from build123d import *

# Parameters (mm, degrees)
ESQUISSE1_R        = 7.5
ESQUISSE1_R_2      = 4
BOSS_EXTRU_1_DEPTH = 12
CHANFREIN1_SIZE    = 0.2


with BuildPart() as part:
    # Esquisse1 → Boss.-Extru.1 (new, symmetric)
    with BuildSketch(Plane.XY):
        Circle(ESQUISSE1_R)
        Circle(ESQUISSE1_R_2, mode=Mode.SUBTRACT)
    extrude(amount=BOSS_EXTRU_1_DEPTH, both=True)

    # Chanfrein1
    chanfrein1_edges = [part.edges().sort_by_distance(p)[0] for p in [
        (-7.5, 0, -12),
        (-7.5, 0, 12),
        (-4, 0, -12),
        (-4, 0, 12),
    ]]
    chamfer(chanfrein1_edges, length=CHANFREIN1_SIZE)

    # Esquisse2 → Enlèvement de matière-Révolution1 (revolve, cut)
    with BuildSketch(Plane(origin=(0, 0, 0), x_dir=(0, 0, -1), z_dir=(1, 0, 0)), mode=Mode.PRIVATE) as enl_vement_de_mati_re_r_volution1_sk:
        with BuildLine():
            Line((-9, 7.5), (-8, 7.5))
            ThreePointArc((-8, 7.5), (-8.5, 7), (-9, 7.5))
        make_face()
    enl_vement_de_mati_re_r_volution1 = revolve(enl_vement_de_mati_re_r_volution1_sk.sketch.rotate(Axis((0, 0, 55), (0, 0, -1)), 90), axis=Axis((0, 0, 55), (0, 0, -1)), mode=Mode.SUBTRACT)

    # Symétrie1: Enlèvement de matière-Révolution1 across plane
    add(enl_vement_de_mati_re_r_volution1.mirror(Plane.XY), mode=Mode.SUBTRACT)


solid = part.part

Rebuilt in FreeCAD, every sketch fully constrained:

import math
import FreeCAD as App
import Part
import Sketcher
from FreeCAD import Vector


def edges_at(feature, points):
    """Names of the edges that pass closest to the given points."""
    edges = feature.Shape.Edges
    near = lambda p: min(range(len(edges)), key=lambda i: edges[i].distToShape(Part.Vertex(*p))[0])
    return sorted({f"Edge{near(p) + 1}" for p in points})

doc = App.newDocument("Part")
body = doc.addObject("PartDesign::Body", "Body")

# Sketch on XY plane
sketch1 = body.newObject("Sketcher::SketchObject", "Sketch")
sketch1.AttachmentSupport = (doc.getObject("XY_Plane"), [""])
sketch1.MapMode = "FlatFace"
sketch1.addGeometry(Part.Circle(Vector(0, 0, 0), Vector(0, 0, 1), 7.5), False)
sketch1.addGeometry(Part.Circle(Vector(0, 0, 0), Vector(0, 0, 1), 4), False)
sketch1.addConstraint(Sketcher.Constraint("Coincident", 0, 3, -1, 1))
sketch1.addConstraint(Sketcher.Constraint("Coincident", 1, 3, -1, 1))
sketch1.addConstraint(Sketcher.Constraint("Diameter", 0, 15.0))
sketch1.addConstraint(Sketcher.Constraint("Diameter", 1, 8.0))
pad1 = body.newObject("PartDesign::Pad", "Pad")
pad1.Profile = sketch1
pad1.Length = 24
pad1.Midplane = True
doc.recompute()

chamfer = body.newObject("PartDesign::Chamfer", "Chamfer")
chamfer.Base = (pad1, edges_at(pad1, [
    (-7.5, 0, -12),
    (-7.5, 0, 12),
    (-4, 0, -12),
    (-4, 0, 12),
]))
chamfer.Size = 0.2

# Sketch on YZ plane
sketch2 = body.newObject("Sketcher::SketchObject", "Sketch001")
sketch2.AttachmentSupport = (doc.getObject("YZ_Plane"), [""])
sketch2.MapMode = "FlatFace"
sketch2.addGeometry(Part.LineSegment(Vector(7.5, 8, 0), Vector(7.5, 9, 0)), False)
sketch2.addGeometry(Part.ArcOfCircle(Part.Circle(Vector(7.5, 8.5, 0), Vector(0, 0, 1), 0.5), math.radians(90), math.radians(270)), False)
sketch2.addConstraint(Sketcher.Constraint("Coincident", 0, 1, 1, 2))
sketch2.addConstraint(Sketcher.Constraint("Coincident", 1, 1, 0, 2))
sketch2.addConstraint(Sketcher.Constraint("Vertical", 0))
sketch2.addConstraint(Sketcher.Constraint("Vertical", 1, 3, 0, 1))
sketch2.addConstraint(Sketcher.Constraint("Radius", 1, 0.5))
sketch2.addConstraint(Sketcher.Constraint("DistanceY", -1, 1, 0, 1, 8.0))
sketch2.addConstraint(Sketcher.Constraint("DistanceX", -1, 1, 1, 3, 7.5))
groove = body.newObject("PartDesign::Groove", "Groove")
groove.Profile = sketch2
groove.ReferenceAxis = (sketch2, ["V_Axis"])
groove.Angle = 360
doc.recompute()

mirrored = body.newObject("PartDesign::Mirrored", "Mirrored")
mirrored.Originals = [groove]
mirrored.MirrorPlane = (doc.getObject("XY_Plane"), [""])
body.Tip = mirrored

doc.recompute()
